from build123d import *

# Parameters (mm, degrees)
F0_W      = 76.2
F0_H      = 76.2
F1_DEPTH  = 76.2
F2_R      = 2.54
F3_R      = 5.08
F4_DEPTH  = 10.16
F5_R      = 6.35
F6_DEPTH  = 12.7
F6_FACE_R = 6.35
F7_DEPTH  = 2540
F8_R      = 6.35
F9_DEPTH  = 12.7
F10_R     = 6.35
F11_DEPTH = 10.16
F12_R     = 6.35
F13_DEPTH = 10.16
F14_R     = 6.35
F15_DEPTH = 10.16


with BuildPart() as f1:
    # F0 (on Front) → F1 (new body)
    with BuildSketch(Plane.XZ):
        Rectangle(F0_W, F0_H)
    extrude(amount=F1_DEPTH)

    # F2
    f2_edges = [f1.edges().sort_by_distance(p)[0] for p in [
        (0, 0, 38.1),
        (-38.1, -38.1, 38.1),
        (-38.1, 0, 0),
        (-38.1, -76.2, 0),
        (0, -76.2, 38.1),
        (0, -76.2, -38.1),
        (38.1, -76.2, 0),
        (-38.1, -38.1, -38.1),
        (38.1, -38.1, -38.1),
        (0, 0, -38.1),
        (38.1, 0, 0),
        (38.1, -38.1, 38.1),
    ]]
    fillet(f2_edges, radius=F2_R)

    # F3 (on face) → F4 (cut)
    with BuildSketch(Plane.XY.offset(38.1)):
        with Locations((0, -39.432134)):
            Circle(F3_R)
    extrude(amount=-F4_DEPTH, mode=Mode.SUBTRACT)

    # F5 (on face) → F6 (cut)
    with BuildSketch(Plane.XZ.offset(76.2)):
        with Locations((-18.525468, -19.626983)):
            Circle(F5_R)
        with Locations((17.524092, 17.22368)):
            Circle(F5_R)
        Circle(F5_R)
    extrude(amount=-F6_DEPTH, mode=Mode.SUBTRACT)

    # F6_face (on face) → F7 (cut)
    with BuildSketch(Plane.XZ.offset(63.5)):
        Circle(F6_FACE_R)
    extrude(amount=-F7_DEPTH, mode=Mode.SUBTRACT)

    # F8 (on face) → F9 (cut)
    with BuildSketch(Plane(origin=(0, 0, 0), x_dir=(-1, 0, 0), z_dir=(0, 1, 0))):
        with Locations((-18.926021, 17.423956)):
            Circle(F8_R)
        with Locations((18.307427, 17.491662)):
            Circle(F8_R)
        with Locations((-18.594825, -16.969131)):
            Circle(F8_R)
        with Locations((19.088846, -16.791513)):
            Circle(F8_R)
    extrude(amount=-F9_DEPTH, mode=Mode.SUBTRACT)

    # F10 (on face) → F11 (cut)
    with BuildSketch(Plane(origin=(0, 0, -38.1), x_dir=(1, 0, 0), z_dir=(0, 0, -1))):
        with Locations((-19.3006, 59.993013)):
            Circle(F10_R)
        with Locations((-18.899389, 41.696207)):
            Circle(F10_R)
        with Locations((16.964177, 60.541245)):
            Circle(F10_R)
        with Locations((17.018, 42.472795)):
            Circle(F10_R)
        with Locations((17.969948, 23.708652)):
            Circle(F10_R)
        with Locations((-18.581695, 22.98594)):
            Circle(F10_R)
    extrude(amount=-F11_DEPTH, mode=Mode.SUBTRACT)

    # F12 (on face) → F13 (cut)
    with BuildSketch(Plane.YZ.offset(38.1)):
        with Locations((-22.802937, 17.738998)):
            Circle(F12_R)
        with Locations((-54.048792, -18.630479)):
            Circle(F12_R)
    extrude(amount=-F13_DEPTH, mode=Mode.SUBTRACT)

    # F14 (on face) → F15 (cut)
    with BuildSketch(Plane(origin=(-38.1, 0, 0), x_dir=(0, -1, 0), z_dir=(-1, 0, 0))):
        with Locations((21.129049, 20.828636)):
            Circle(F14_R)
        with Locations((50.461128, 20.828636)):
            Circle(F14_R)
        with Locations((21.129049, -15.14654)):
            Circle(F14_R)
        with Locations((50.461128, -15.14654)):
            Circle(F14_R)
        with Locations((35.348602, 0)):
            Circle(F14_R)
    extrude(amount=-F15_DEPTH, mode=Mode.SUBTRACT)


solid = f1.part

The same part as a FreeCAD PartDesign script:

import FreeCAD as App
import Part
import Sketcher

V = App.Vector
Q = App.Units.Quantity


def add_polygon(sketch, points):
    """Adds a closed chain of lines whose ends are joined by coincident constraints."""
    first, n = sketch.GeometryCount, len(points)
    for a, b in zip(points, points[1:] + points[:1]):
        sketch.addGeometry(Part.LineSegment(App.Vector(*a, 0), App.Vector(*b, 0)), False)
    for i in range(n):
        sketch.addConstraint(Sketcher.Constraint("Coincident", first + i, 2, first + (i + 1) % n, 1))

doc = App.newDocument("Part")
body = doc.addObject("PartDesign::Body", "Body")

# Sketch on XZ plane
sketch1 = body.newObject("Sketcher::SketchObject", "Sketch")
sketch1.AttachmentSupport = (doc.getObject("XZ_Plane"), [""])
sketch1.MapMode = "FlatFace"
add_polygon(sketch1, [(-38.1, 38.1), (-38.1, -38.1), (38.1, -38.1), (38.1, 38.1)])  # lines 0-3
sketch1.addConstraint([
    Sketcher.Constraint("Vertical", 0),
    Sketcher.Constraint("Horizontal", 1),
    Sketcher.Constraint("Vertical", 2),
    Sketcher.Constraint("Horizontal", 3),
    Sketcher.Constraint("Symmetric", 0, 2, 2, 2, -1, 1),
    Sketcher.Constraint("Equal", 3, 0),
    Sketcher.Constraint("DistanceX", 1, 1, 1, 2, Q("3 in")),
])
pad1 = body.newObject("PartDesign::Pad", "Pad")
pad1.Profile = sketch1
pad1.Length = Q("3 in")
doc.recompute()

fillet = body.newObject("PartDesign::Fillet", "Fillet")
fillet.Base = (pad1, ["Edge1"])
fillet.UseAllEdges = True
fillet.Radius = Q("0.1 in")

# Sketch on XY plane
sketch2 = body.newObject("Sketcher::SketchObject", "Sketch001")
sketch2.AttachmentSupport = (doc.getObject("XY_Plane"), [""])
sketch2.MapMode = "FlatFace"
sketch2.AttachmentOffset = App.Placement(V(0, 0, 1.5 * 25.4), App.Rotation())
sketch2.addGeometry(Part.Circle(V(0, -39.432134, 0), V(0, 0, 1), 5.08), False)
sketch2.addConstraint([
    Sketcher.Constraint("PointOnObject", 0, 3, -2),
    Sketcher.Constraint("Diameter", 0, Q("0.4 in")),
    Sketcher.Constraint("DistanceY", 0, 3, -1, 1, 39.432134),
])
pocket1 = body.newObject("PartDesign::Pocket", "Pocket")
pocket1.Profile = sketch2
pocket1.Length = Q("0.4 in")

# Sketch on XZ plane
sketch3 = body.newObject("Sketcher::SketchObject", "Sketch002")
sketch3.AttachmentSupport = (doc.getObject("XZ_Plane"), [""])
sketch3.MapMode = "FlatFace"
sketch3.AttachmentOffset = App.Placement(V(0, 0, 3 * 25.4), App.Rotation())
sketch3.addGeometry([
    Part.Circle(V(-18.525468, -19.626983, 0), V(0, 0, 1), 6.35),
    Part.Circle(V(17.524092, 17.22368, 0), V(0, 0, 1), 6.35),
    Part.Circle(V(0, 0, 0), V(0, 0, 1), 6.35),
], False)
sketch3.addConstraint([
    Sketcher.Constraint("Coincident", 2, 3, -1, 1),
    Sketcher.Constraint("Equal", 0, 1),
    Sketcher.Constraint("Equal", 1, 2),
    Sketcher.Constraint("Diameter", 0, Q("0.5 in")),
    Sketcher.Constraint("DistanceX", 0, 3, -1, 1, 18.525468),
    Sketcher.Constraint("DistanceX", -1, 1, 1, 3, 17.524092),
    Sketcher.Constraint("DistanceY", -1, 1, 1, 3, 17.22368),
    Sketcher.Constraint("DistanceY", 0, 3, -1, 1, 19.626983),
])
pocket2 = body.newObject("PartDesign::Pocket", "Pocket001")
pocket2.Profile = sketch3
pocket2.Length = Q("0.5 in")

# Sketch on XZ plane
sketch4 = body.newObject("Sketcher::SketchObject", "Sketch003")
sketch4.AttachmentSupport = (doc.getObject("XZ_Plane"), [""])
sketch4.MapMode = "FlatFace"
sketch4.AttachmentOffset = App.Placement(V(0, 0, 2.5 * 25.4), App.Rotation())
sketch4.addGeometry(Part.Circle(V(0, 0, 0), V(0, 0, 1), 6.35), False)
sketch4.addConstraint([
    Sketcher.Constraint("Coincident", 0, 3, -1, 1),
    Sketcher.Constraint("Diameter", 0, Q("0.5 in")),
])
pocket3 = body.newObject("PartDesign::Pocket", "Pocket002")
pocket3.Profile = sketch4
pocket3.Length = Q("100 in")

# Sketch on XZ plane
sketch5 = body.newObject("Sketcher::SketchObject", "Sketch004")
sketch5.AttachmentSupport = (doc.getObject("XZ_Plane"), [""])
sketch5.MapMode = "FlatFace"
sketch5.addGeometry([
    Part.Circle(V(18.926021, 17.423956, 0), V(0, 0, 1), 6.35),
    Part.Circle(V(-18.307427, 17.491662, 0), V(0, 0, 1), 6.35),
    Part.Circle(V(18.594825, -16.969131, 0), V(0, 0, 1), 6.35),
    Part.Circle(V(-19.088846, -16.791513, 0), V(0, 0, 1), 6.35),
], False)
sketch5.addConstraint([
    Sketcher.Constraint("Equal", 0, 1),
    Sketcher.Constraint("Equal", 1, 2),
    Sketcher.Constraint("Equal", 2, 3),
    Sketcher.Constraint("Diameter", 0, Q("0.5 in")),
    Sketcher.Constraint("DistanceX", -1, 1, 0, 3, 18.926021),
    Sketcher.Constraint("DistanceY", 2, 3, -1, 1, 16.969131),
    Sketcher.Constraint("DistanceX", 3, 3, 1, 3, 0.781419),
    Sketcher.Constraint("DistanceX", 3, 3, 2, 3, 37.683671),
    Sketcher.Constraint("DistanceY", 2, 3, 3, 3, 0.177618),
    Sketcher.Constraint("DistanceY", 3, 3, 0, 3, 34.215469),
    Sketcher.Constraint("DistanceX", 1, 3, -1, 1, 18.307427),
    Sketcher.Constraint("DistanceY", -1, 1, 1, 3, 17.491662),
])
pocket4 = body.newObject("PartDesign::Pocket", "Pocket003")
pocket4.Profile = sketch5
pocket4.Length = Q("0.5 in")
pocket4.Reversed = True

# Sketch on XY plane
sketch6 = body.newObject("Sketcher::SketchObject", "Sketch005")
sketch6.AttachmentSupport = (doc.getObject("XY_Plane"), [""])
sketch6.MapMode = "FlatFace"
sketch6.AttachmentOffset = App.Placement(V(0, 0, -1.5 * 25.4), App.Rotation())
sketch6.addGeometry([
    Part.Circle(V(-19.3006, -59.993013, 0), V(0, 0, 1), 6.35),  # 0
    Part.Circle(V(-18.899389, -41.696207, 0), V(0, 0, 1), 6.35),  # 1
    Part.Circle(V(16.964177, -60.541245, 0), V(0, 0, 1), 6.35),  # 2
    Part.Circle(V(17.018, -42.472795, 0), V(0, 0, 1), 6.35),  # 3
    Part.Circle(V(17.969948, -23.708652, 0), V(0, 0, 1), 6.35),  # 4
    Part.Circle(V(-18.581695, -22.98594, 0), V(0, 0, 1), 6.35),  # 5
], False)
sketch6.addConstraint([
    Sketcher.Constraint("Equal", 0, 1),
    Sketcher.Constraint("Equal", 1, 2),
    Sketcher.Constraint("Equal", 2, 3),
    Sketcher.Constraint("Equal", 3, 4),
    Sketcher.Constraint("Equal", 4, 5),
    Sketcher.Constraint("Diameter", 0, Q("0.5 in")),
    Sketcher.Constraint("DistanceX", -1, 1, 3, 3, Q("0.67 in")),
    Sketcher.Constraint("DistanceX", 0, 3, -1, 1, 19.3006),
    Sketcher.Constraint("DistanceX", 1, 3, -1, 1, 18.899389),
    Sketcher.Constraint("DistanceY", 5, 3, -1, 1, 22.98594),
    Sketcher.Constraint("DistanceY", 2, 3, 1, 3, 18.845038),
    Sketcher.Constraint("DistanceY", 2, 3, 3, 3, 18.06845),
    Sketcher.Constraint("DistanceY", 0, 3, 3, 3, 17.520218),
    Sketcher.Constraint("DistanceX", 2, 3, 4, 3, 1.005771),
    Sketcher.Constraint("DistanceY", 0, 3, 4, 3, 36.284361),
    Sketcher.Constraint("DistanceY", 0, 3, -1, 1, 59.993013),
    Sketcher.Constraint("DistanceX", -1, 1, 2, 3, 16.964177),
    Sketcher.Constraint("DistanceX", 5, 3, -1, 1, 18.581695),
])
pocket5 = body.newObject("PartDesign::Pocket", "Pocket004")
pocket5.Profile = sketch6
pocket5.Length = Q("0.4 in")
pocket5.Reversed = True

# Sketch on YZ plane
sketch7 = body.newObject("Sketcher::SketchObject", "Sketch006")
sketch7.AttachmentSupport = (doc.getObject("YZ_Plane"), [""])
sketch7.MapMode = "FlatFace"
sketch7.AttachmentOffset = App.Placement(V(0, 0, 1.5 * 25.4), App.Rotation())
sketch7.addGeometry([
    Part.Circle(V(-22.802937, 17.738998, 0), V(0, 0, 1), 6.35),
    Part.Circle(V(-54.048792, -18.630479, 0), V(0, 0, 1), 6.35),
], False)
sketch7.addConstraint([
    Sketcher.Constraint("Equal", 0, 1),
    Sketcher.Constraint("Diameter", 0, Q("0.5 in")),
    Sketcher.Constraint("DistanceY", 1, 3, -1, 1, 18.630479),
    Sketcher.Constraint("DistanceX", 0, 3, -1, 1, 22.802937),
    Sketcher.Constraint("DistanceY", -1, 1, 0, 3, 17.738998),
    Sketcher.Constraint("DistanceX", 1, 3, -1, 1, 54.048792),
])
pocket6 = body.newObject("PartDesign::Pocket", "Pocket005")
pocket6.Profile = sketch7
pocket6.Length = Q("0.4 in")

# Sketch on YZ plane
sketch8 = body.newObject("Sketcher::SketchObject", "Sketch007")
sketch8.AttachmentSupport = (doc.getObject("YZ_Plane"), [""])
sketch8.MapMode = "FlatFace"
sketch8.AttachmentOffset = App.Placement(V(0, 0, -1.5 * 25.4), App.Rotation())
sketch8.addGeometry([
    Part.Circle(V(-21.129049, 20.828636, 0), V(0, 0, 1), 6.35),  # 0
    Part.Circle(V(-50.461128, 20.828636, 0), V(0, 0, 1), 6.35),  # 1
    Part.Circle(V(-21.129049, -15.14654, 0), V(0, 0, 1), 6.35),  # 2
    Part.Circle(V(-50.461128, -15.14654, 0), V(0, 0, 1), 6.35),  # 3
    Part.Circle(V(-35.348602, 0, 0), V(0, 0, 1), 6.35),  # 4
], False)
sketch8.addConstraint([
    Sketcher.Constraint("Equal", 0, 1),
    Sketcher.Constraint("Equal", 1, 2),
    Sketcher.Constraint("Equal", 2, 3),
    Sketcher.Constraint("Equal", 3, 4),
    Sketcher.Constraint("PointOnObject", 4, 3, -1),
    Sketcher.Constraint("Horizontal", 0, 3, 1, 3),
    Sketcher.Constraint("Horizontal", 2, 3, 3, 3),
    Sketcher.Constraint("Vertical", 0, 3, 2, 3),
    Sketcher.Constraint("Vertical", 1, 3, 3, 3),
    Sketcher.Constraint("Diameter", 0, Q("0.5 in")),
    Sketcher.Constraint("DistanceX", 0, 3, -1, 1, 21.129049),
    Sketcher.Constraint("DistanceX", 1, 3, -1, 1, 50.461128),
    Sketcher.Constraint("DistanceY", 2, 3, -1, 1, 15.14654),
    Sketcher.Constraint("DistanceY", -1, 1, 0, 3, 20.828636),
    Sketcher.Constraint("DistanceX", 4, 3, -1, 1, 35.348602),
])
pocket7 = body.newObject("PartDesign::Pocket", "Pocket006")
pocket7.Profile = sketch8
pocket7.Length = Q("0.4 in")
pocket7.Reversed = True

doc.recompute()
